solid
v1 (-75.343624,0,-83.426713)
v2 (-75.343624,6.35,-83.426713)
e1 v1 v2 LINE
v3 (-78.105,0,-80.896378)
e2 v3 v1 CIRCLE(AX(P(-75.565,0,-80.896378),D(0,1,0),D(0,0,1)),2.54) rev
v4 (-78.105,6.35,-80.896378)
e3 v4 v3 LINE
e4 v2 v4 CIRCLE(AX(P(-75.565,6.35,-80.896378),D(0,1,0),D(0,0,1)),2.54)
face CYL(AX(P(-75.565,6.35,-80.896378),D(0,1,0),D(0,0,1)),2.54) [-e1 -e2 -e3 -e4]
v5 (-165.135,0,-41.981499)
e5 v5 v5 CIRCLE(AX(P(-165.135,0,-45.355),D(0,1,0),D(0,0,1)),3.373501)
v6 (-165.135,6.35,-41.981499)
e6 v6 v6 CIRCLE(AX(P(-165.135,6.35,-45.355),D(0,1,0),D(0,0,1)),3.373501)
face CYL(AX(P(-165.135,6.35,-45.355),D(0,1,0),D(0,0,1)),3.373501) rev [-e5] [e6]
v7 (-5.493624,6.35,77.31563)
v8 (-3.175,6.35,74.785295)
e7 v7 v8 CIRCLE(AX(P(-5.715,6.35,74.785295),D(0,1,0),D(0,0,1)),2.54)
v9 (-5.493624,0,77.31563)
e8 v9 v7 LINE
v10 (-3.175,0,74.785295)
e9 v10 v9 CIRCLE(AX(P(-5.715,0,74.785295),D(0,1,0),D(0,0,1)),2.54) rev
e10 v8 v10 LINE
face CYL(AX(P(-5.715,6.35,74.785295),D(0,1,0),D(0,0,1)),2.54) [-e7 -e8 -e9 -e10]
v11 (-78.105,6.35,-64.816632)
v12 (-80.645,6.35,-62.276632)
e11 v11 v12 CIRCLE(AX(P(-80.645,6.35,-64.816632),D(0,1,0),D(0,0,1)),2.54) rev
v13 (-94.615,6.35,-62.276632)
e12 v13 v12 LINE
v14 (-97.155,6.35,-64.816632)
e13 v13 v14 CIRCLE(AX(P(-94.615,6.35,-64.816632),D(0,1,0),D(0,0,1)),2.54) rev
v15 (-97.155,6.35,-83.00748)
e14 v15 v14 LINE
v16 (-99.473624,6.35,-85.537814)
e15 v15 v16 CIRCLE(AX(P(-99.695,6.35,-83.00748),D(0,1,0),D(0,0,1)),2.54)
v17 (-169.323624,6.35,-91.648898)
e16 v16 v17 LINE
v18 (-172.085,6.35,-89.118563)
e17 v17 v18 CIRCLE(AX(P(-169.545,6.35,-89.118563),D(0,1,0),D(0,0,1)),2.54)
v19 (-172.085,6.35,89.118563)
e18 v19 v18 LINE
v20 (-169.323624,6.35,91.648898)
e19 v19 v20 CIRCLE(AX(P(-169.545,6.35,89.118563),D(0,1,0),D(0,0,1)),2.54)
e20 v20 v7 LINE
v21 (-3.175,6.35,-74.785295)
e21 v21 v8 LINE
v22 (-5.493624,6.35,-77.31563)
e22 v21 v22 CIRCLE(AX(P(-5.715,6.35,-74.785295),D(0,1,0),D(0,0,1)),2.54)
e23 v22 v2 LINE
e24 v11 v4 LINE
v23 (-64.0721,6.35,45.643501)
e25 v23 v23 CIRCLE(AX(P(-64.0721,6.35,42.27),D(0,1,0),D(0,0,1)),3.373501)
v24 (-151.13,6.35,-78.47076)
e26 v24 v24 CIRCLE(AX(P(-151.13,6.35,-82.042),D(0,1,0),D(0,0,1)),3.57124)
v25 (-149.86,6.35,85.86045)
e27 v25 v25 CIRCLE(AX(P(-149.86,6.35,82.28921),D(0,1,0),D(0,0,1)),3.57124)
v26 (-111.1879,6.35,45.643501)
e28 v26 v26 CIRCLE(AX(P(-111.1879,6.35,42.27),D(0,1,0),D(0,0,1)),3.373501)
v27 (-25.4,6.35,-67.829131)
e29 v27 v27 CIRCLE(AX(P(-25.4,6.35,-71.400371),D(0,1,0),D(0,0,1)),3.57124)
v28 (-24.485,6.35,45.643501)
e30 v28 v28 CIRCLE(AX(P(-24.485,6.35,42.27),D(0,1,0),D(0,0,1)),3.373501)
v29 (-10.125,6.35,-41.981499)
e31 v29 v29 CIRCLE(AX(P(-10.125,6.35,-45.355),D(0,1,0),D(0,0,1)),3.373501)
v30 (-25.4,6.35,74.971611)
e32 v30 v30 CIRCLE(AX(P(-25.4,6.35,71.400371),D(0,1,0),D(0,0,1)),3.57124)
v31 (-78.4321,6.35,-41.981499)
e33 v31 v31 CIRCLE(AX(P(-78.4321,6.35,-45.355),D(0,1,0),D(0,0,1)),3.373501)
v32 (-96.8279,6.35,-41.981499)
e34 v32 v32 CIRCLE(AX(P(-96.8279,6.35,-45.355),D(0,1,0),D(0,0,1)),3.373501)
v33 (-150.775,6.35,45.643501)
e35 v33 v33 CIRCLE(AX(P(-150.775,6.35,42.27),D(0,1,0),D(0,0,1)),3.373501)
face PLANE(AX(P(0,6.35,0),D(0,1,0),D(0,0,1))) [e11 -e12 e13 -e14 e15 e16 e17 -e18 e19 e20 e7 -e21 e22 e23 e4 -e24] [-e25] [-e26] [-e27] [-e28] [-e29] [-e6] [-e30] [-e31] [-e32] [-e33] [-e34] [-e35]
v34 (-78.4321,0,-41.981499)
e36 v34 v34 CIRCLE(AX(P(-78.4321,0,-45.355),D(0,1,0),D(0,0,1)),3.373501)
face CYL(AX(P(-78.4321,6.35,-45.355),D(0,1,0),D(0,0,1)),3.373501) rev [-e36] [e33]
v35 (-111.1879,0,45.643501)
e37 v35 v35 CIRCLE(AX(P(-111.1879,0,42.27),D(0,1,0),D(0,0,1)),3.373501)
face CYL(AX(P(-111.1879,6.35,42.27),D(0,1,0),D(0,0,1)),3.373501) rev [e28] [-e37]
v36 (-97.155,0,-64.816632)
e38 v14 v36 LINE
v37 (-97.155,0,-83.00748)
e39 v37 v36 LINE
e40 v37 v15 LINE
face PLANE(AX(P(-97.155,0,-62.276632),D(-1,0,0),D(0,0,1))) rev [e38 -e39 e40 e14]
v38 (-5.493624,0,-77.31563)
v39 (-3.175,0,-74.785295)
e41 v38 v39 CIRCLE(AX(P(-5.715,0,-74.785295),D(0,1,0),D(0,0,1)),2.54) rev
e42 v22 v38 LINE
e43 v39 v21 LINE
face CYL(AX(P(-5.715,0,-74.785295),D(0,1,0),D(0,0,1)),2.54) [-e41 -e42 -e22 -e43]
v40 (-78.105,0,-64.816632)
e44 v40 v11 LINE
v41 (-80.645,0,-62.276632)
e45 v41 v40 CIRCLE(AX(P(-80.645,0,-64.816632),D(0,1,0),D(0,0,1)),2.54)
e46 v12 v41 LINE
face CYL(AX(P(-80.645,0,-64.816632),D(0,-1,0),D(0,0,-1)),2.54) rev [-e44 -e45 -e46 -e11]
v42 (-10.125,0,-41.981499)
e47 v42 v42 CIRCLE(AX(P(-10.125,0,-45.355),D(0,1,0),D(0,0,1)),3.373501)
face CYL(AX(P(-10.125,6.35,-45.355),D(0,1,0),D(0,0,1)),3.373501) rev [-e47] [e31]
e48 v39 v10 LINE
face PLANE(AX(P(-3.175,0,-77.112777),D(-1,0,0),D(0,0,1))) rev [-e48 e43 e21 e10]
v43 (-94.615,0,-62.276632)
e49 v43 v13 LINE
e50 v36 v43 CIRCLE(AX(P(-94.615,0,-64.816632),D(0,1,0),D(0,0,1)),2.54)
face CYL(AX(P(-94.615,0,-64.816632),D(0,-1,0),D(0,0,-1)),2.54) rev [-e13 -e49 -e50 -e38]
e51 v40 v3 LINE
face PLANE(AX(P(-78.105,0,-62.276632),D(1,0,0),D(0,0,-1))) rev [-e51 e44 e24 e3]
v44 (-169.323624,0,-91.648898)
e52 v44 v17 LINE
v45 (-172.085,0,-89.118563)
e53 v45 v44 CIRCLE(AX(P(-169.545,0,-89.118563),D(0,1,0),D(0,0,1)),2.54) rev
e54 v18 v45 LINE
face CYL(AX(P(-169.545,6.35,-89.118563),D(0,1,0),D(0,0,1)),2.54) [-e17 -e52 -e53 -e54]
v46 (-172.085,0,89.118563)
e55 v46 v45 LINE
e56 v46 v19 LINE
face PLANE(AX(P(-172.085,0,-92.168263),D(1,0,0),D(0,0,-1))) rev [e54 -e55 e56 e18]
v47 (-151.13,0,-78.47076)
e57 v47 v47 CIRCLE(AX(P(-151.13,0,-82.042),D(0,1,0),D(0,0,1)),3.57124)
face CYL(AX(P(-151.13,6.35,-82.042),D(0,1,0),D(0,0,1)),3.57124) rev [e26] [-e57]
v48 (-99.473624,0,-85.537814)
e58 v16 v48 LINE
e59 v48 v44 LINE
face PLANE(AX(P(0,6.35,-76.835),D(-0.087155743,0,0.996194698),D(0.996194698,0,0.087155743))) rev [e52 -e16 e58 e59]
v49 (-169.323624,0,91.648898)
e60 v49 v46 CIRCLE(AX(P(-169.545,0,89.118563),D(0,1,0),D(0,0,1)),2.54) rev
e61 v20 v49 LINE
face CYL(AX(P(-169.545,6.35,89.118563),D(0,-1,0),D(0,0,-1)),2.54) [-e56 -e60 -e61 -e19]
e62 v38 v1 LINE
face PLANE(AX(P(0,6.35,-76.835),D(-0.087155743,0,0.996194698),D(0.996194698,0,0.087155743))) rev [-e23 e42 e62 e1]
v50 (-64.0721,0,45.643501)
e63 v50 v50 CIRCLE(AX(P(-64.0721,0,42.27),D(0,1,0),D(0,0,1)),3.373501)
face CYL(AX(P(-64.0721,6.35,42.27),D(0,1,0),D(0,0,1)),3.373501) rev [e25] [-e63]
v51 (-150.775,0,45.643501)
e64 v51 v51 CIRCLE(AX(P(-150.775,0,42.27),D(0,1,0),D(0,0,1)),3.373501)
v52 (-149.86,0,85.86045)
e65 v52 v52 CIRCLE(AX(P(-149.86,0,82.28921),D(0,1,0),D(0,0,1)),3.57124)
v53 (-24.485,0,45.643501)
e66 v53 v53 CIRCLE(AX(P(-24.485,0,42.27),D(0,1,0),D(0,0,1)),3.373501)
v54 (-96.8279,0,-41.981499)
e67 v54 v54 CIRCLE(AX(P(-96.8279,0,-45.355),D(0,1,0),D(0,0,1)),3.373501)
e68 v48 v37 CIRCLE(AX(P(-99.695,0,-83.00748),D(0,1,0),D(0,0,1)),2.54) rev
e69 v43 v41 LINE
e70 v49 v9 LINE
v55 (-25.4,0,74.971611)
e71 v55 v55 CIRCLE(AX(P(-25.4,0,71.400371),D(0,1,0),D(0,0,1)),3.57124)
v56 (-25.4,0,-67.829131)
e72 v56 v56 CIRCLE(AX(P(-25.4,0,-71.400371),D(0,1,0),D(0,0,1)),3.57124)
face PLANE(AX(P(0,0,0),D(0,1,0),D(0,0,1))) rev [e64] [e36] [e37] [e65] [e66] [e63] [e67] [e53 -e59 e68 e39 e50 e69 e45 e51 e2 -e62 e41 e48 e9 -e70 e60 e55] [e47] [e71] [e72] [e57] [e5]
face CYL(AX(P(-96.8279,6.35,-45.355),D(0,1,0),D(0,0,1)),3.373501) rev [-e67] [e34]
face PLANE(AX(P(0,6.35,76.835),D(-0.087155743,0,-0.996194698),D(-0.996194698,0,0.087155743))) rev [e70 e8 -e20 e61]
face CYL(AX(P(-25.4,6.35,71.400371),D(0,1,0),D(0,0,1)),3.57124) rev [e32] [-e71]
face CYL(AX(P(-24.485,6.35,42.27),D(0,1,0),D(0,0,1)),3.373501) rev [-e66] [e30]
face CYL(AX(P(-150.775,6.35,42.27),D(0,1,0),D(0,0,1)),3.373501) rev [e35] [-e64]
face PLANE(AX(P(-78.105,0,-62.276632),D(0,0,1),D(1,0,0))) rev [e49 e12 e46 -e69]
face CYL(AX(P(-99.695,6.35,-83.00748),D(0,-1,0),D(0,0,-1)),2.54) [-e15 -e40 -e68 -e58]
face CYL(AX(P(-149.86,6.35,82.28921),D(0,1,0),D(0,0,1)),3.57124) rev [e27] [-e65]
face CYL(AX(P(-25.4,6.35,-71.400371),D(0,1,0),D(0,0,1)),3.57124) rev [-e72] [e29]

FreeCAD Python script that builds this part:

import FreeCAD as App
import Part
import Sketcher

V = App.Vector
Q = App.Units.Quantity


def edges_at(feature, points):
    """Names of the edges that pass closest to the given points."""
    edges = feature.Shape.Edges
    near = lambda p: min(range(len(edges)), key=lambda i: edges[i].distToShape(Part.Vertex(*p))[0])
    return sorted({f"Edge{near(p) + 1}" for p in points})


def add_polygon(sketch, points):
    """Adds a closed chain of lines whose ends are joined by coincident constraints."""
    first, n = sketch.GeometryCount, len(points)
    for a, b in zip(points, points[1:] + points[:1]):
        sketch.addGeometry(Part.LineSegment(App.Vector(*a, 0), App.Vector(*b, 0)), False)
    for i in range(n):
        sketch.addConstraint(Sketcher.Constraint("Coincident", first + i, 2, first + (i + 1) % n, 1))

doc = App.newDocument("Part")
body = doc.addObject("PartDesign::Body", "Body")

# Sketch on XZ plane
sketch1 = body.newObject("Sketcher::SketchObject", "Sketch")
sketch1.AttachmentSupport = (doc.getObject("XZ_Plane"), [""])
sketch1.MapMode = "FlatFace"
add_polygon(sketch1, [(0, 77), (0, -77), (-175, -92), (-175, 92)])  # lines 0-3
sketch1.addConstraint([
    Sketcher.Constraint("Vertical", 0),
    Sketcher.Constraint("Vertical", 2),
    Sketcher.Constraint("Symmetric", 0, 2, 3, 2, -1, 1),
    Sketcher.Constraint("Equal", 1, 3),
    Sketcher.Constraint("Angle", 1, Q("-175 deg")),
    Sketcher.Constraint("DistanceY", 0, 2, 0, 1, Q("6.05 in")),
    Sketcher.Constraint("DistanceX", 1, 2, -1, 1, Q("6.9 in")),
])
pad1 = body.newObject("PartDesign::Pad", "Pad")
pad1.Profile = sketch1
pad1.Length = Q("0.25 in")
pad1.Reversed = True

# Sketch on XZ plane
sketch2 = body.newObject("Sketcher::SketchObject", "Sketch001")
sketch2.AttachmentSupport = (doc.getObject("XZ_Plane"), [""])
sketch2.MapMode = "FlatFace"
sketch2.AttachmentOffset = App.Placement(V(0, 0, -0.25 * 25.4), App.Rotation())
add_polygon(sketch2, [(-97, -107), (-97, -62), (-78, -62), (-78, -107)])  # lines 0-3
sketch2.addConstraint([
    Sketcher.Constraint("Vertical", 0),
    Sketcher.Constraint("Horizontal", 1),
    Sketcher.Constraint("Vertical", 2),
    Sketcher.Constraint("Horizontal", 3),
    Sketcher.Constraint("DistanceX", 1, 1, 1, 2, Q("0.75 in")),
    Sketcher.Constraint("DistanceY", 0, 1, 0, 2, Q("1.75 in")),
    Sketcher.Constraint("DistanceX", 0, 2, -1, 1, Q("3.825 in")),
    Sketcher.Constraint("DistanceY", 0, 2, -1, 1, 62.276632),
])
pocket1 = body.newObject("PartDesign::Pocket", "Pocket")
pocket1.Profile = sketch2
pocket1.Type = "ThroughAll"
pocket1.Reversed = True

# Sketch on XZ plane
sketch3 = body.newObject("Sketcher::SketchObject", "Sketch002")
sketch3.AttachmentSupport = (doc.getObject("XZ_Plane"), [""])
sketch3.MapMode = "FlatFace"
sketch3.AttachmentOffset = App.Placement(V(0, 0, -0.25 * 25.4), App.Rotation())
sketch3.addGeometry([
    Part.Circle(V(-24.5, 42.3, 0), V(0, 0, 1), 3.4),  # 0
    Part.Circle(V(-64.1, 42.3, 0), V(0, 0, 1), 3.4),  # 1
    Part.Circle(V(-111.2, 42.3, 0), V(0, 0, 1), 3.4),  # 2
    Part.Circle(V(-150.8, 42.3, 0), V(0, 0, 1), 3.4),  # 3
    Part.Circle(V(-78.4, -45.4, 0), V(0, 0, 1), 3.4),  # 4
    Part.Circle(V(-10.1, -45.4, 0), V(0, 0, 1), 3.4),  # 5
    Part.Circle(V(-96.8, -45.4, 0), V(0, 0, 1), 3.4),  # 6
    Part.Circle(V(-165.1, -45.4, 0), V(0, 0, 1), 3.4),  # 7
], False)
sketch3.addConstraint([
    Sketcher.Constraint("Equal", 0, 1),
    Sketcher.Constraint("Equal", 1, 2),
    Sketcher.Constraint("Equal", 2, 3),
    Sketcher.Constraint("Equal", 3, 4),
    Sketcher.Constraint("Equal", 4, 5),
    Sketcher.Constraint("Equal", 5, 6),
    Sketcher.Constraint("Equal", 6, 7),
    Sketcher.Constraint("Horizontal", 0, 3, 1, 3),
    Sketcher.Constraint("Horizontal", 1, 3, 2, 3),
    Sketcher.Constraint("Horizontal", 2, 3, 3, 3),
    Sketcher.Constraint("Horizontal", 4, 3, 5, 3),
    Sketcher.Constraint("Horizontal", 5, 3, 6, 3),
    Sketcher.Constraint("Horizontal", 6, 3, 7, 3),
    Sketcher.Constraint("Diameter", 0, 6.747002),
    Sketcher.Constraint("DistanceX", 2, 3, 0, 3, Q("3.4135 in")),
    Sketcher.Constraint("DistanceX", 3, 3, 1, 3, Q("3.4135 in")),
    Sketcher.Constraint("DistanceX", 6, 3, 5, 3, Q("3.4135 in")),
    Sketcher.Constraint("DistanceX", 7, 3, 4, 3, Q("3.4135 in")),
    Sketcher.Constraint("DistanceX", 0, 3, -1, 1, 24.485),
    Sketcher.Constraint("DistanceY", -1, 1, 0, 3, 42.27),
    Sketcher.Constraint("DistanceX", 1, 3, -1, 1, 64.0721),
    Sketcher.Constraint("DistanceX", 4, 3, -1, 1, 78.4321),
    Sketcher.Constraint("DistanceY", 4, 3, -1, 1, 45.355),
    Sketcher.Constraint("DistanceX", 5, 3, -1, 1, 10.125),
])
doc.recompute()
hole = body.newObject("PartDesign::Hole", "Hole")
hole.Profile = sketch3
hole.ThreadType = "None"
hole.Diameter = 6.747002
hole.DepthType = "ThroughAll"
hole.Reversed = True

# Sketch on XZ plane
sketch4 = body.newObject("Sketcher::SketchObject", "Sketch003")
sketch4.AttachmentSupport = (doc.getObject("XZ_Plane"), [""])
sketch4.MapMode = "FlatFace"
sketch4.AttachmentOffset = App.Placement(V(0, 0, -0.25 * 25.4), App.Rotation())
sketch4.addGeometry([
    Part.Circle(V(-25.4, -71.4, 0), V(0, 0, 1), 3.6),
    Part.Circle(V(-25.4, 71.4, 0), V(0, 0, 1), 3.6),
    Part.Circle(V(-149.9, 82.3, 0), V(0, 0, 1), 3.6),
    Part.Circle(V(-151.1, -82, 0), V(0, 0, 1), 3.6),
], False)
sketch4.addConstraint([
    Sketcher.Constraint("Equal", 0, 1),
    Sketcher.Constraint("Equal", 1, 2),
    Sketcher.Constraint("Equal", 2, 3),
    Sketcher.Constraint("Symmetric", 0, 3, 1, 3, -1),
    Sketcher.Constraint("DistanceX", 0, 3, -1, 1, Q("1 in")),
    Sketcher.Constraint("Diameter", 0, Q("0.2812 in")),
    Sketcher.Constraint("DistanceX", 2, 3, -1, 1, Q("5.9 in")),
    Sketcher.Constraint("DistanceX", 3, 3, -1, 1, Q("5.95 in")),
    Sketcher.Constraint("DistanceY", 3, 3, -1, 1, Q("3.23 in")),
    Sketcher.Constraint("DistanceY", 0, 3, -1, 1, 71.400371),
    Sketcher.Constraint("DistanceY", -1, 1, 2, 3, 82.28921),
])
doc.recompute()
hole2 = body.newObject("PartDesign::Hole", "Hole001")
hole2.Profile = sketch4
hole2.ThreadType = "None"
hole2.Diameter = Q("0.2812 in")
hole2.DepthType = "ThroughAll"
hole2.Reversed = True

# Sketch on XZ plane
sketch5 = body.newObject("Sketcher::SketchObject", "Sketch004")
sketch5.AttachmentSupport = (doc.getObject("XZ_Plane"), [""])
sketch5.MapMode = "FlatFace"
sketch5.AttachmentOffset = App.Placement(V(0, 0, -0.25 * 25.4), App.Rotation())
add_polygon(sketch5, [(-175.3, -92.2), (-175.3, 92.2), (-172.1, 92.2), (-172.1, -92.2)])  # lines 0-3
add_polygon(sketch5, [(-3.2, -77.1), (-3.2, 77.1), (0, 77.1), (0, -77.1)])  # lines 4-7
sketch5.addConstraint([
    Sketcher.Constraint("Vertical", 0),
    Sketcher.Constraint("Horizontal", 1),
    Sketcher.Constraint("Vertical", 2),
    Sketcher.Constraint("Horizontal", 3),
    Sketcher.Constraint("Vertical", 4),
    Sketcher.Constraint("Horizontal", 5),
    Sketcher.Constraint("Vertical", 6),
    Sketcher.Constraint("Horizontal", 7),
    Sketcher.Constraint("Symmetric", 5, 2, 6, 2, -1, 1),
    Sketcher.Constraint("Equal", 3, 5),
    Sketcher.Constraint("DistanceX", 0, 2, -1, 1, Q("6.9 in")),
    Sketcher.Constraint("DistanceX", 1, 1, 1, 2, Q("0.125 in")),
    Sketcher.Constraint("DistanceY", 0, 1, 0, 2, 184.336526),
    Sketcher.Constraint("DistanceY", 4, 1, 4, 2, 154.225553),
    Sketcher.Constraint("DistanceY", 2, 2, 4, 2, 169.28104),
])
pocket2 = body.newObject("PartDesign::Pocket", "Pocket001")
pocket2.Profile = sketch5
pocket2.Type = "ThroughAll"
pocket2.Reversed = True
doc.recompute()

fillet = body.newObject("PartDesign::Fillet", "Fillet")
fillet.Base = (pocket2, edges_at(pocket2, [
    (-172.085, 3.175, -91.89),
    (-172.085, 3.175, 91.89),
    (-3.175, 3.175, 77.113),
    (-3.175, 3.175, -77.113),
    (-97.155, 3.175, -85.335),
    (-97.155, 3.175, -62.277),
    (-78.105, 3.175, -83.668),
    (-78.105, 3.175, -62.277),
]))
fillet.Radius = Q("0.1 in")

doc.recompute()
